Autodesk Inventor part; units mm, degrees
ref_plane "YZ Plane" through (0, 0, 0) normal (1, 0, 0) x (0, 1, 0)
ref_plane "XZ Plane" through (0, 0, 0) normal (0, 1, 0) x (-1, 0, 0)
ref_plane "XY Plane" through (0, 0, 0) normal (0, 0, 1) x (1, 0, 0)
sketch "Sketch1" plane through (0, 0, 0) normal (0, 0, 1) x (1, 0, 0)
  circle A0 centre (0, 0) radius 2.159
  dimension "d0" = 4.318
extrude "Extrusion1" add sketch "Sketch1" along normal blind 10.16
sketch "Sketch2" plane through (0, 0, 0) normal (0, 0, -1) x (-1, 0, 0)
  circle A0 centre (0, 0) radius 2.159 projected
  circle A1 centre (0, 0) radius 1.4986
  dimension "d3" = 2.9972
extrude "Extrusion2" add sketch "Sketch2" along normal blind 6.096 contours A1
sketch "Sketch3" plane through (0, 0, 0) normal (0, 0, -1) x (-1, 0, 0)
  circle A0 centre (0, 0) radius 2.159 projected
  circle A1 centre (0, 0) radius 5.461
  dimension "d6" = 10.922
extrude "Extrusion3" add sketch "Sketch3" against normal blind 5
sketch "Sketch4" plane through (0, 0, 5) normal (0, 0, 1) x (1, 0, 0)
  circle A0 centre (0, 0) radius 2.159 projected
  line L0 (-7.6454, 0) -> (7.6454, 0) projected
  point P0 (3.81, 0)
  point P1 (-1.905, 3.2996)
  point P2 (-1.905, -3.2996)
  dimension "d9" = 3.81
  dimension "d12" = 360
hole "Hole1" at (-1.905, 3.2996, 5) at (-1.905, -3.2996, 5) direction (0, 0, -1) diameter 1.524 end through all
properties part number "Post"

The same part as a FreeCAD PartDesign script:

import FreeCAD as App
import Part
import Sketcher

V = App.Vector
Q = App.Units.Quantity

doc = App.newDocument("Part")
body = doc.addObject("PartDesign::Body", "Body")

sketch1 = body.newObject("Sketcher::SketchObject", "Sketch")
sketch1.AttachmentSupport = (doc.getObject("XY_Plane"), [""])
sketch1.MapMode = "FlatFace"
sketch1.addGeometry(Part.Circle(V(0, 0, 0), V(0, 0, 1), 2.159), False)
sketch1.addConstraint([
    Sketcher.Constraint("Coincident", 0, 3, -1, 1),
    Sketcher.Constraint("Diameter", 0, Q("0.17 in")),
])
pad1 = body.newObject("PartDesign::Pad", "Pad")
pad1.Profile = sketch1
pad1.Length = Q("0.4 in")

sketch2 = body.newObject("Sketcher::SketchObject", "Sketch001")
sketch2.AttachmentSupport = (doc.getObject("XY_Plane"), [""])
sketch2.MapMode = "FlatFace"
sketch2.addGeometry(Part.Circle(V(0, 0, 0), V(0, 0, 1), 1.4986), False)
sketch2.addConstraint([
    Sketcher.Constraint("Coincident", 0, 3, -1, 1),
    Sketcher.Constraint("Diameter", 0, Q("0.118 in")),
])
pad2 = body.newObject("PartDesign::Pad", "Pad001")
pad2.Profile = sketch2
pad2.Length = Q("0.24 in")
pad2.Reversed = True

sketch3 = body.newObject("Sketcher::SketchObject", "Sketch002")
sketch3.AttachmentSupport = (doc.getObject("XY_Plane"), [""])
sketch3.MapMode = "FlatFace"
sketch3.addGeometry([
    Part.Circle(V(0, 0, 0), V(0, 0, 1), 5.461),
    Part.Circle(V(0, 0, 0), V(0, 0, 1), 2.159),
], False)
sketch3.addConstraint([
    Sketcher.Constraint("Coincident", 0, 3, -1, 1),
    Sketcher.Constraint("Coincident", 1, 3, -1, 1),
    Sketcher.Constraint("Diameter", 0, Q("0.43 in")),
    Sketcher.Constraint("Diameter", 1, Q("0.17 in")),
])
pad3 = body.newObject("PartDesign::Pad", "Pad002")
pad3.Profile = sketch3
pad3.Length = 5

sketch4 = body.newObject("Sketcher::SketchObject", "Sketch003")
sketch4.AttachmentSupport = (doc.getObject("XY_Plane"), [""])
sketch4.MapMode = "FlatFace"
sketch4.AttachmentOffset = App.Placement(V(0, 0, 5), App.Rotation())
sketch4.addGeometry([
    Part.Circle(V(-1.905, 3.2996, 0), V(0, 0, 1), 0.762),
    Part.Circle(V(-1.905, -3.2996, 0), V(0, 0, 1), 0.762),
], False)
sketch4.addConstraint([
    Sketcher.Constraint("Equal", 0, 1),
    Sketcher.Constraint("Symmetric", 0, 3, 1, 3, -1),
    Sketcher.Constraint("Diameter", 0, Q("0.06 in")),
    Sketcher.Constraint("DistanceX", 0, 3, -1, 1, Q("0.075 in")),
    Sketcher.Constraint("DistanceY", -1, 1, 0, 3, Q("0.1299 in")),
])
doc.recompute()
hole = body.newObject("PartDesign::Hole", "Hole")
hole.Profile = sketch4
hole.ThreadType = "None"
hole.Diameter = Q("0.06 in")
hole.DepthType = "ThroughAll"

doc.recompute()
